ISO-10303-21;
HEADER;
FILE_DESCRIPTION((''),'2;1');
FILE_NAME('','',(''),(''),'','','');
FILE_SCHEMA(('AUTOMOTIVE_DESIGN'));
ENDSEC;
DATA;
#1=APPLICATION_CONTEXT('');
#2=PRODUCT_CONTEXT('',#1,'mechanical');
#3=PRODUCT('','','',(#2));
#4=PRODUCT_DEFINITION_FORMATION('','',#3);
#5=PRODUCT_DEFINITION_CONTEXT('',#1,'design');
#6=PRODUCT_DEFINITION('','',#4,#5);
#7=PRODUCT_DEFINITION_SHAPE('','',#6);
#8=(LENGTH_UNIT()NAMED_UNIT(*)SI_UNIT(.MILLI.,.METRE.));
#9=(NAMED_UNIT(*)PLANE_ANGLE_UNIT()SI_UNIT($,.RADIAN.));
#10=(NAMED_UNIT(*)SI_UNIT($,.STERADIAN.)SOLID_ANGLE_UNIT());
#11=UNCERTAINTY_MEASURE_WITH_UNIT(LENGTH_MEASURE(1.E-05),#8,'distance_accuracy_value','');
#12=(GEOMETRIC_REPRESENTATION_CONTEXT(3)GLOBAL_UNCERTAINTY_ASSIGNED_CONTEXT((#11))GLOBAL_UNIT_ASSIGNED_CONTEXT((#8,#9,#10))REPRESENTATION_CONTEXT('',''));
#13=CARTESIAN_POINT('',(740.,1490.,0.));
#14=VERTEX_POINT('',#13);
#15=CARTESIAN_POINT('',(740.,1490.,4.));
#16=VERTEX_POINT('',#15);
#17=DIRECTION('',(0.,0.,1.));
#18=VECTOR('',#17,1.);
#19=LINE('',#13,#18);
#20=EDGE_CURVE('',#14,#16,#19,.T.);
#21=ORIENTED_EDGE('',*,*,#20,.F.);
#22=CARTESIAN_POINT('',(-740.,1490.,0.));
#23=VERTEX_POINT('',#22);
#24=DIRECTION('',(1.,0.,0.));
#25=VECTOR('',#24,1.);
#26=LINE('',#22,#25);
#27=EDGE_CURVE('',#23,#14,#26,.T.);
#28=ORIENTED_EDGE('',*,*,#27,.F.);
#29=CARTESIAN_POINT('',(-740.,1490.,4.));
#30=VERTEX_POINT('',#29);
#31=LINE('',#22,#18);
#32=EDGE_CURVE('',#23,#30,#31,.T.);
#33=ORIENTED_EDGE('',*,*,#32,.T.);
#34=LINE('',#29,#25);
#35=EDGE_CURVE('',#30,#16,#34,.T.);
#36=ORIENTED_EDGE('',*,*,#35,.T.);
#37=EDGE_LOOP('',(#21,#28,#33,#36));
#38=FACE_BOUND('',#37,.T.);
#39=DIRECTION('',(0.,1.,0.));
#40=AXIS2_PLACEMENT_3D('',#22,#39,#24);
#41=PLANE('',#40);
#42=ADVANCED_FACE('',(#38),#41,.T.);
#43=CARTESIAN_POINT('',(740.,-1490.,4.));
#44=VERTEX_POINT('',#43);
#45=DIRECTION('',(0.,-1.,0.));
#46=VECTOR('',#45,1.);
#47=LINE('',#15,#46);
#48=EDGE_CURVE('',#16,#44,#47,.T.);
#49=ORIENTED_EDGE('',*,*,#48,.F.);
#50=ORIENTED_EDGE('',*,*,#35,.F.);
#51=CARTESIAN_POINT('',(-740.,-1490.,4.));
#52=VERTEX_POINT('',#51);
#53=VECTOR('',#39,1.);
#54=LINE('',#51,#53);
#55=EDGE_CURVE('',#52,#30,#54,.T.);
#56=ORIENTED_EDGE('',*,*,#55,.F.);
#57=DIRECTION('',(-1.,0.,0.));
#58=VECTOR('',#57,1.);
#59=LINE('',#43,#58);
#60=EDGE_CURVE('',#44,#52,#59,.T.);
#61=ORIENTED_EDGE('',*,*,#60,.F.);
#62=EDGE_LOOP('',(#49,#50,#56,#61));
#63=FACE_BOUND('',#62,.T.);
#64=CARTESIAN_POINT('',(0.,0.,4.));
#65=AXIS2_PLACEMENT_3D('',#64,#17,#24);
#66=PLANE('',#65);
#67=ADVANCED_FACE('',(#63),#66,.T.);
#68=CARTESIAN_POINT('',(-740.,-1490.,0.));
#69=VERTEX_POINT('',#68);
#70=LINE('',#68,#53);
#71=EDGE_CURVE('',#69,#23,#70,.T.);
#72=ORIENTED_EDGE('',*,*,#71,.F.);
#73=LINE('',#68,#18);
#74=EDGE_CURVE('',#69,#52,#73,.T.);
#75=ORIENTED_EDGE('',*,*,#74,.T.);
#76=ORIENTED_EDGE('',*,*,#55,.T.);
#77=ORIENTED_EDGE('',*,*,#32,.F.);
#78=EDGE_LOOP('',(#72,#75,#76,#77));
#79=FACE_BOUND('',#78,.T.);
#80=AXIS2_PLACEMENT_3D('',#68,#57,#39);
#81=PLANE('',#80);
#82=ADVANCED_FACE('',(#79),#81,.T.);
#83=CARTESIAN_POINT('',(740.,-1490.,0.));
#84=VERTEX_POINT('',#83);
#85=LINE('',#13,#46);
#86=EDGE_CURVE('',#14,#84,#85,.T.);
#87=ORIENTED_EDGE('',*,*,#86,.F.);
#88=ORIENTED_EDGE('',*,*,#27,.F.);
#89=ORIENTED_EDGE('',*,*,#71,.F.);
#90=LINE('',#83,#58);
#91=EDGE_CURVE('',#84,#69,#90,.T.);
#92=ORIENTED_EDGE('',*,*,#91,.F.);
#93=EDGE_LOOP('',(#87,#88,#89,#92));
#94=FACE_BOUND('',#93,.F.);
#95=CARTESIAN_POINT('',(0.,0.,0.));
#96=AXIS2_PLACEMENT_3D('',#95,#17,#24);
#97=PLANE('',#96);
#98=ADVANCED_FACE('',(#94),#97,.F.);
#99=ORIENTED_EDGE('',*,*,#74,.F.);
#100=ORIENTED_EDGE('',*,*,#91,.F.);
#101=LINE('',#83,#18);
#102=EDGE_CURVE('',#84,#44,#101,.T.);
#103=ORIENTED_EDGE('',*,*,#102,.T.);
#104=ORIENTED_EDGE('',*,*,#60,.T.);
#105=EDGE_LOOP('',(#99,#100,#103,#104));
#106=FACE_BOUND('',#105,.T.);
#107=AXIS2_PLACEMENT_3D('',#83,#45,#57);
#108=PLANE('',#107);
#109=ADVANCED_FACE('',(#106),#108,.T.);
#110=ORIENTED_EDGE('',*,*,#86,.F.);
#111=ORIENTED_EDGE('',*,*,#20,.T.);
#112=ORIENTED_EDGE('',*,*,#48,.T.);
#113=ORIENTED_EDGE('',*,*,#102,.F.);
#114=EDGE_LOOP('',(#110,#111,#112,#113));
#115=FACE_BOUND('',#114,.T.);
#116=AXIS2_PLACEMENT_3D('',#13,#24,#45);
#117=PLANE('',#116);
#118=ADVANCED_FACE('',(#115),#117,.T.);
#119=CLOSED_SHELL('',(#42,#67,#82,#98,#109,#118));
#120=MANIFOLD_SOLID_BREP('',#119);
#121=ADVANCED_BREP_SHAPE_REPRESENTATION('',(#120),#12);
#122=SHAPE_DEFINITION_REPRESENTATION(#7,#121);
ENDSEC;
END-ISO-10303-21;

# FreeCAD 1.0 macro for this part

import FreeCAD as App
import Part
import Sketcher
Q = App.Units.Quantity

doc = App.newDocument("Part")
params = doc.addObject("Spreadsheet::Sheet", "Params")
for row, (alias, value) in enumerate([
    ("sketch1_width", "1480 mm"),
    ("sketch1_height", "2980 mm"),
    ("pad1_length", "4 mm"),
], start=1):
    params.set(f"A{row}", alias)
    params.set(f"B{row}", "=" + value)
    params.setAlias(f"B{row}", alias)

body = doc.addObject("PartDesign::Body", "Body")

# Sketch on XY plane
sketch1 = doc.addObject("Sketcher::SketchObject", "Sketch")
body.addObject(sketch1)
sketch1.AttachmentSupport = (doc.XY_Plane, [""])
sketch1.MapMode = "FlatFace"
sketch1.addGeometry([
    Part.LineSegment(App.Vector(-740, -1490, 0), App.Vector(740, -1490, 0)),
    Part.LineSegment(App.Vector(740, -1490, 0), App.Vector(740, 1490, 0)),
    Part.LineSegment(App.Vector(740, 1490, 0), App.Vector(-740, 1490, 0)),
    Part.LineSegment(App.Vector(-740, 1490, 0), App.Vector(-740, -1490, 0)),
], False)
sketch1.addConstraint([
    Sketcher.Constraint("Coincident", 0, 2, 1, 1),
    Sketcher.Constraint("Coincident", 1, 2, 2, 1),
    Sketcher.Constraint("Coincident", 2, 2, 3, 1),
    Sketcher.Constraint("Coincident", 3, 2, 0, 1),
    Sketcher.Constraint("Horizontal", 0),
    Sketcher.Constraint("Vertical", 1),
    Sketcher.Constraint("Horizontal", 2),
    Sketcher.Constraint("Vertical", 3),
    Sketcher.Constraint("Symmetric", 0, 2, 2, 2, -1, 1),
    Sketcher.Constraint("DistanceX", 0, 1, 0, 2, Q("1480 mm")),
    Sketcher.Constraint("DistanceY", 1, 1, 1, 2, Q("2980 mm")),
])
sketch1.setExpression("Constraints[9]", "Params.sketch1_width")
sketch1.setExpression("Constraints[10]", "Params.sketch1_height")
pad1 = doc.addObject("PartDesign::Pad", "Pad")
body.addObject(pad1)
pad1.Profile = sketch1
pad1.setExpression("Length", "Params.pad1_length")

doc.recompute()
